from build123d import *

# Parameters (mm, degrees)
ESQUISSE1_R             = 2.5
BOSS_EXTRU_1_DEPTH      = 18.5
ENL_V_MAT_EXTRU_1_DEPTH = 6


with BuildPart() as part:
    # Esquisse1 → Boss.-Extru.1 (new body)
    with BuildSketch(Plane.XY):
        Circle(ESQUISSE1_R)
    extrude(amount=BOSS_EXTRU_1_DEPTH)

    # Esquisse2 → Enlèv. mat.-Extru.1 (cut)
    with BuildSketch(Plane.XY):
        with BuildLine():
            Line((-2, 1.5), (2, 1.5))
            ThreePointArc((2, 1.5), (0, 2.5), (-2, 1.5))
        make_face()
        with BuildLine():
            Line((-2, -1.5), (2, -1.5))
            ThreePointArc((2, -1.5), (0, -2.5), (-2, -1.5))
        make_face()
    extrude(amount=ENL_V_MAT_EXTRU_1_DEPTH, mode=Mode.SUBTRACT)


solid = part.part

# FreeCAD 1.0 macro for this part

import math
import FreeCAD as App
import Part
import Sketcher
from FreeCAD import Vector
Q = App.Units.Quantity

doc = App.newDocument("Part")
body = doc.addObject("PartDesign::Body", "Body")

sketch1 = body.newObject("Sketcher::SketchObject", "Sketch")
sketch1.AttachmentSupport = (doc.getObject("XY_Plane"), [""])
sketch1.MapMode = "FlatFace"
sketch1.addGeometry(Part.Circle(Vector(0, 0, 0), Vector(0, 0, 1), 2.5), False)
sketch1.addConstraint(Sketcher.Constraint("Coincident", 0, 3, -1, 1))
sketch1.addConstraint(Sketcher.Constraint("Diameter", 0, Q("5 mm")))
pad1 = body.newObject("PartDesign::Pad", "Pad")
pad1.Profile = sketch1
pad1.Length = 18.5

sketch2 = body.newObject("Sketcher::SketchObject", "Sketch001")
sketch2.AttachmentSupport = (doc.getObject("XY_Plane"), [""])
sketch2.MapMode = "FlatFace"
sketch2.addGeometry(Part.LineSegment(Vector(-2, 1.5, 0), Vector(2, 1.5, 0)), False)
sketch2.addGeometry(Part.ArcOfCircle(Part.Circle(Vector(0, 0, 0), Vector(0, 0, 1), 2.5), math.radians(37), math.radians(143)), False)
sketch2.addGeometry(Part.LineSegment(Vector(2, -1.5, 0), Vector(-2, -1.5, 0)), False)
sketch2.addGeometry(Part.ArcOfCircle(Part.Circle(Vector(0, 0, 0), Vector(0, 0, 1), 2.5), math.radians(-143), math.radians(-37)), False)
sketch2.addConstraint(Sketcher.Constraint("Coincident", 0, 1, 1, 2))
sketch2.addConstraint(Sketcher.Constraint("Coincident", 1, 1, 0, 2))
sketch2.addConstraint(Sketcher.Constraint("Coincident", 2, 1, 3, 2))
sketch2.addConstraint(Sketcher.Constraint("Coincident", 3, 1, 2, 2))
sketch2.addConstraint(Sketcher.Constraint("Horizontal", 0))
sketch2.addConstraint(Sketcher.Constraint("Horizontal", 2))
sketch2.addConstraint(Sketcher.Constraint("Coincident", 1, 3, -1, 1))
sketch2.addConstraint(Sketcher.Constraint("Coincident", 3, 3, -1, 1))
sketch2.addConstraint(Sketcher.Constraint("Equal", 1, 3))
sketch2.addConstraint(Sketcher.Constraint("Vertical", 1, 1, 2, 1))
sketch2.addConstraint(Sketcher.Constraint("Radius", 1, Q("2.5 mm")))
sketch2.addConstraint(Sketcher.Constraint("DistanceX", 0, 1, 0, 2, Q("4 mm")))
pocket1 = body.newObject("PartDesign::Pocket", "Pocket")
pocket1.Profile = sketch2
pocket1.Length = 6
pocket1.Reversed = True

doc.recompute()
